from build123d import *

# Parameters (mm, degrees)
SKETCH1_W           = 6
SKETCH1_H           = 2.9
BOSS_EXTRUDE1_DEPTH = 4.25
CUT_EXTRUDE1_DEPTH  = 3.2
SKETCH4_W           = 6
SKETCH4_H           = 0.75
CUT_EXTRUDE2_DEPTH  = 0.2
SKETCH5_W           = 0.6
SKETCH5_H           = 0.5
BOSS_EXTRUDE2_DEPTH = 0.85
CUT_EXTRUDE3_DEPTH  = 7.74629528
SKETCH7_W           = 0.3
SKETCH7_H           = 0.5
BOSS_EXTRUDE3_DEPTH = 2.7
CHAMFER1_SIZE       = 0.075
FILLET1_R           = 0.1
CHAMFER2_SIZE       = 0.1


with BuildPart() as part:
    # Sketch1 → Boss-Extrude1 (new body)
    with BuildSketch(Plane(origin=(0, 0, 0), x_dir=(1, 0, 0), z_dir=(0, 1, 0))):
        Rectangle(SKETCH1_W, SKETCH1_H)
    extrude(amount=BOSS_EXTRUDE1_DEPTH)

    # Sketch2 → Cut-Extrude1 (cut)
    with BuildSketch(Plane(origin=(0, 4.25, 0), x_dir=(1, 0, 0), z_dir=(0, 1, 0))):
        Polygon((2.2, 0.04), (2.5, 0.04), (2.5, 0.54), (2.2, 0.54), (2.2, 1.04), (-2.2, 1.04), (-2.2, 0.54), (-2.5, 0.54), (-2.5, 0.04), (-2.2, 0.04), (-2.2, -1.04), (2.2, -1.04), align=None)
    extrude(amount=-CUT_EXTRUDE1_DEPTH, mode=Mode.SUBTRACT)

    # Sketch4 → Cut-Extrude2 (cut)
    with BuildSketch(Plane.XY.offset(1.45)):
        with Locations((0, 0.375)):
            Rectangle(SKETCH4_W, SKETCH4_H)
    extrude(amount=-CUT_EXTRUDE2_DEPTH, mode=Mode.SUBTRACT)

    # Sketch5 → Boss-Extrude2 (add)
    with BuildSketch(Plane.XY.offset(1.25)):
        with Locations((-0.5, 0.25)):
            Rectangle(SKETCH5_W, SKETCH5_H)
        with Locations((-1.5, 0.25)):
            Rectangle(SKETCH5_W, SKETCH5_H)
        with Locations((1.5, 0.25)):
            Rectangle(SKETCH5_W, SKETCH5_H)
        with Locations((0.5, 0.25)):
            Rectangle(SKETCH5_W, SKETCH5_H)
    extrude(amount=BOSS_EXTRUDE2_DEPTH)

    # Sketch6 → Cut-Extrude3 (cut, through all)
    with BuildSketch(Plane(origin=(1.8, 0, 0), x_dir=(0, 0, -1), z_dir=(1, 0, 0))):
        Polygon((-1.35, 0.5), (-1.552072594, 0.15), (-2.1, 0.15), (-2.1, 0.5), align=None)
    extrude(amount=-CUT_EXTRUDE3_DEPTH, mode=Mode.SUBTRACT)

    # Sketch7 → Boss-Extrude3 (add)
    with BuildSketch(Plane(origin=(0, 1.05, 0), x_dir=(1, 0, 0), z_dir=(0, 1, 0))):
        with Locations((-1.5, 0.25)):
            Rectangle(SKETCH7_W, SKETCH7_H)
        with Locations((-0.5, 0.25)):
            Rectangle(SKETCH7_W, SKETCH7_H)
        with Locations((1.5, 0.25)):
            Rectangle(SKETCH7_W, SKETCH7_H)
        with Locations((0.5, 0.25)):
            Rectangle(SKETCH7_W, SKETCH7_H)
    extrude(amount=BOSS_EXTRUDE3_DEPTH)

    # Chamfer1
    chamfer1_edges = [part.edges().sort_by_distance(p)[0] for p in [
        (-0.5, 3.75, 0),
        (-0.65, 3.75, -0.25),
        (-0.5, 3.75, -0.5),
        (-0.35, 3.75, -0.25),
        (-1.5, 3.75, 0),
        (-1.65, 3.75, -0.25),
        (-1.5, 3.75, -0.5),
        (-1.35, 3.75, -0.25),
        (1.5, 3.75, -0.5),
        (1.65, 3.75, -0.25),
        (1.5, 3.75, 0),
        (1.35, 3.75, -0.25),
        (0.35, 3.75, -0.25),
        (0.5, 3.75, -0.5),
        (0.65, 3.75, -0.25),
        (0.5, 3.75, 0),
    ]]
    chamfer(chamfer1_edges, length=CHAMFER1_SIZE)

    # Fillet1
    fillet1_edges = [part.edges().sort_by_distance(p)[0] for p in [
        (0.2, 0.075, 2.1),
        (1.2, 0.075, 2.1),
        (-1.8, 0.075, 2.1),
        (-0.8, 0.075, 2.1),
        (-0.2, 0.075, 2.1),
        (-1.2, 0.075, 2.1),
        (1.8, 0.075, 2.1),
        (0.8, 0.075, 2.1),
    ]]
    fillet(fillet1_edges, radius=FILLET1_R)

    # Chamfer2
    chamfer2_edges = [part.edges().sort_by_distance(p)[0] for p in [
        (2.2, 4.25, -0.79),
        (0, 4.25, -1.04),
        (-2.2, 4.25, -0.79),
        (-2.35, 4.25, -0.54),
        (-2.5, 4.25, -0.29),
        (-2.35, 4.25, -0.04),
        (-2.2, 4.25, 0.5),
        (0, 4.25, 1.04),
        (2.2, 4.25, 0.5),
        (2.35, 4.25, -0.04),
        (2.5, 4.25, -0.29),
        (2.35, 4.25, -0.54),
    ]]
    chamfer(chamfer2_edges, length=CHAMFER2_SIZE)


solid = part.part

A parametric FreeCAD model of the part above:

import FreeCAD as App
import Part
import Sketcher

V = App.Vector
Q = App.Units.Quantity


def edges_at(feature, points):
    """Names of the edges that pass closest to the given points."""
    edges = feature.Shape.Edges
    near = lambda p: min(range(len(edges)), key=lambda i: edges[i].distToShape(Part.Vertex(*p))[0])
    return sorted({f"Edge{near(p) + 1}" for p in points})


def add_polygon(sketch, points):
    """Adds a closed chain of lines whose ends are joined by coincident constraints."""
    first, n = sketch.GeometryCount, len(points)
    for a, b in zip(points, points[1:] + points[:1]):
        sketch.addGeometry(Part.LineSegment(App.Vector(*a, 0), App.Vector(*b, 0)), False)
    for i in range(n):
        sketch.addConstraint(Sketcher.Constraint("Coincident", first + i, 2, first + (i + 1) % n, 1))

doc = App.newDocument("Part")
params = doc.addObject("Spreadsheet::Sheet", "Params")
for row, (alias, value) in enumerate([
    ("sketch1_width", "6 mm"),
    ("sketch1_height", "2.9 mm"),
    ("pad1_length", "4.25 mm"),
    ("sketch2_width", "0.3 mm"),
    ("sketch2_width2", "4.4 mm"),
    ("sketch2_height", "0.5 mm"),
    ("sketch2_height2", "1.08 mm"),
    ("pocket1_length", "3.2 mm"),
    ("sketch3_width", "6 mm"),
    ("sketch3_height", "0.75 mm"),
    ("pocket2_length", "0.2 mm"),
    ("sketch4_width", "0.6 mm"),
    ("sketch4_height", "0.5 mm"),
    ("pad2_length", "0.85 mm"),
    ("sketch5_width", "0.35 mm"),
    ("sketch5_height", "0.75 mm"),
    ("sketch6_width", "0.3 mm"),
    ("sketch6_height", "0.5 mm"),
    ("pad3_length", "2.7 mm"),
    ("chamfer_size", "0.075 mm"),
    ("fillet_radius", "0.1 mm"),
    ("chamfer2_size", "0.1 mm"),
], start=1):
    params.set(f"A{row}", alias)
    params.set(f"B{row}", "=" + value)
    params.setAlias(f"B{row}", alias)

body = doc.addObject("PartDesign::Body", "Body")

sketch1 = body.newObject("Sketcher::SketchObject", "Sketch")
sketch1.AttachmentSupport = (doc.getObject("XZ_Plane"), [""])
sketch1.MapMode = "FlatFace"
add_polygon(sketch1, [(-3, -1.45), (-3, 1.45), (3, 1.45), (3, -1.45)])
sketch1.addConstraint([
    Sketcher.Constraint("Vertical", 0),
    Sketcher.Constraint("Horizontal", 1),
    Sketcher.Constraint("Vertical", 2),
    Sketcher.Constraint("Horizontal", 3),
    Sketcher.Constraint("Symmetric", 0, 2, 2, 2, -1, 1),
    Sketcher.Constraint("DistanceX", 1, 1, 1, 2, Q("6 mm")),
    Sketcher.Constraint("DistanceY", 0, 1, 0, 2, Q("2.9 mm")),
])
sketch1.setExpression("Constraints[9]", "Params.sketch1_width")
sketch1.setExpression("Constraints[10]", "Params.sketch1_height")
pad1 = body.newObject("PartDesign::Pad", "Pad")
pad1.Profile = sketch1
pad1.setExpression("Length", "Params.pad1_length")
pad1.Reversed = True

sketch2 = body.newObject("Sketcher::SketchObject", "Sketch001")
sketch2.AttachmentSupport = (doc.getObject("XZ_Plane"), [""])
sketch2.MapMode = "FlatFace"
sketch2.AttachmentOffset = App.Placement(V(0, 0, -4.25), App.Rotation())
add_polygon(sketch2, [(2.2, -0.04), (2.5, -0.04), (2.5, -0.54), (2.2, -0.54), (2.2, -1.04), (-2.2, -1.04), (-2.2, -0.54), (-2.5, -0.54), (-2.5, -0.04), (-2.2, -0.04), (-2.2, 1.04), (2.2, 1.04)])
sketch2.addConstraint([
    Sketcher.Constraint("Horizontal", 0),
    Sketcher.Constraint("Vertical", 1),
    Sketcher.Constraint("Horizontal", 2),
    Sketcher.Constraint("Vertical", 3),
    Sketcher.Constraint("Horizontal", 4),
    Sketcher.Constraint("Vertical", 5),
    Sketcher.Constraint("Horizontal", 6),
    Sketcher.Constraint("Vertical", 7),
    Sketcher.Constraint("Horizontal", 8),
    Sketcher.Constraint("Vertical", 9),
    Sketcher.Constraint("Horizontal", 10),
    Sketcher.Constraint("Vertical", 11),
    Sketcher.Constraint("Symmetric", 3, 2, 9, 2, -1, 1),
    Sketcher.Constraint("Symmetric", 2, 2, 5, 2, -2),
    Sketcher.Constraint("Symmetric", 0, 2, 7, 2, -2),
    Sketcher.Constraint("Vertical", 3, 2, 10, 2),
    Sketcher.Constraint("Equal", 1, 3),
    Sketcher.Constraint("DistanceX", 0, 1, 0, 2, Q("0.3 mm")),
    Sketcher.Constraint("DistanceX", 4, 2, 4, 1, Q("4.4 mm")),
    Sketcher.Constraint("DistanceY", 1, 2, 1, 1, Q("0.5 mm")),
    Sketcher.Constraint("DistanceY", 9, 1, 9, 2, Q("1.08 mm")),
])
sketch2.setExpression("Constraints[29]", "Params.sketch2_width")
sketch2.setExpression("Constraints[30]", "Params.sketch2_width2")
sketch2.setExpression("Constraints[31]", "Params.sketch2_height")
sketch2.setExpression("Constraints[32]", "Params.sketch2_height2")
pocket1 = body.newObject("PartDesign::Pocket", "Pocket")
pocket1.Profile = sketch2
pocket1.setExpression("Length", "Params.pocket1_length")
pocket1.Reversed = True

sketch3 = body.newObject("Sketcher::SketchObject", "Sketch002")
sketch3.AttachmentSupport = (doc.getObject("XY_Plane"), [""])
sketch3.MapMode = "FlatFace"
sketch3.AttachmentOffset = App.Placement(V(0, 0, 1.45), App.Rotation())
add_polygon(sketch3, [(-3, 0.75), (-3, 0), (3, 0), (3, 0.75)])
sketch3.addConstraint([
    Sketcher.Constraint("Vertical", 0),
    Sketcher.Constraint("Horizontal", 1),
    Sketcher.Constraint("Vertical", 2),
    Sketcher.Constraint("Horizontal", 3),
    Sketcher.Constraint("Symmetric", 0, 2, 1, 2, -1, 1),
    Sketcher.Constraint("DistanceX", 1, 1, 1, 2, Q("6 mm")),
    Sketcher.Constraint("DistanceY", 0, 2, 0, 1, Q("0.75 mm")),
])
sketch3.setExpression("Constraints[9]", "Params.sketch3_width")
sketch3.setExpression("Constraints[10]", "Params.sketch3_height")
pocket2 = body.newObject("PartDesign::Pocket", "Pocket001")
pocket2.Profile = sketch3
pocket2.setExpression("Length", "Params.pocket2_length")

sketch4 = body.newObject("Sketcher::SketchObject", "Sketch003")
sketch4.AttachmentSupport = (doc.getObject("XY_Plane"), [""])
sketch4.MapMode = "FlatFace"
sketch4.AttachmentOffset = App.Placement(V(0, 0, 1.25), App.Rotation())
add_polygon(sketch4, [(-0.8, 0.5), (-0.8, 0), (-0.2, 0), (-0.2, 0.5)])
add_polygon(sketch4, [(-1.8, 0.5), (-1.8, 0), (-1.2, 0), (-1.2, 0.5)])
add_polygon(sketch4, [(1.2, 0.5), (1.2, 0), (1.8, 0), (1.8, 0.5)])
add_polygon(sketch4, [(0.2, 0.5), (0.2, 0), (0.8, 0), (0.8, 0.5)])
sketch4.addConstraint([
    Sketcher.Constraint("Vertical", 0),
    Sketcher.Constraint("Horizontal", 1),
    Sketcher.Constraint("Vertical", 2),
    Sketcher.Constraint("Horizontal", 3),
    Sketcher.Constraint("Vertical", 4),
    Sketcher.Constraint("Horizontal", 5),
    Sketcher.Constraint("Vertical", 6),
    Sketcher.Constraint("Horizontal", 7),
    Sketcher.Constraint("Vertical", 8),
    Sketcher.Constraint("Horizontal", 9),
    Sketcher.Constraint("Vertical", 10),
    Sketcher.Constraint("Horizontal", 11),
    Sketcher.Constraint("Vertical", 12),
    Sketcher.Constraint("Horizontal", 13),
    Sketcher.Constraint("Vertical", 14),
    Sketcher.Constraint("Horizontal", 15),
    Sketcher.Constraint("Symmetric", 5, 2, 8, 2, -1, 1),
    Sketcher.Constraint("Symmetric", 1, 2, 12, 2, -1, 1),
    Sketcher.Constraint("Symmetric", 4, 2, 9, 2, -2),
    Sketcher.Constraint("Symmetric", 0, 2, 13, 2, -2),
    Sketcher.Constraint("Horizontal", 3, 2, 6, 2),
    Sketcher.Constraint("Horizontal", 7, 2, 10, 2),
    Sketcher.Constraint("Horizontal", 11, 2, 14, 2),
    Sketcher.Constraint("Equal", 3, 5),
    Sketcher.Constraint("DistanceX", 1, 1, 1, 2, Q("0.6 mm")),
    Sketcher.Constraint("DistanceY", 0, 2, 0, 1, Q("0.5 mm")),
    Sketcher.Constraint("DistanceX", 4, 2, 0, 2, Q("1 mm")),
    Sketcher.Constraint("DistanceX", 0, 2, 8, 2, Q("2 mm")),
])
sketch4.setExpression("Constraints[40]", "Params.sketch4_width")
sketch4.setExpression("Constraints[41]", "Params.sketch4_height")
pad2 = body.newObject("PartDesign::Pad", "Pad001")
pad2.Profile = sketch4
pad2.setExpression("Length", "Params.pad2_length")

sketch5 = body.newObject("Sketcher::SketchObject", "Sketch004")
sketch5.AttachmentSupport = (doc.getObject("YZ_Plane"), [""])
sketch5.MapMode = "FlatFace"
sketch5.AttachmentOffset = App.Placement(V(0, 0, 1.8), App.Rotation())
add_polygon(sketch5, [(0.15, 1.552073), (0.5, 1.35), (0.5, 2.1), (0.15, 2.1)])
sketch5.addConstraint([
    Sketcher.Constraint("Vertical", 1),
    Sketcher.Constraint("Horizontal", 2),
    Sketcher.Constraint("Vertical", 3),
    Sketcher.Constraint("Angle", 0, Q("-30 deg")),
    Sketcher.Constraint("DistanceX", 2, 2, 2, 1, Q("0.35 mm")),
    Sketcher.Constraint("DistanceY", 1, 1, 1, 2, Q("0.75 mm")),
    Sketcher.Constraint("DistanceX", -1, 1, 0, 2, Q("0.5 mm")),
    Sketcher.Constraint("DistanceY", -1, 1, 1, 2, Q("2.1 mm")),
])
sketch5.setExpression("Constraints[8]", "Params.sketch5_width")
sketch5.setExpression("Constraints[9]", "Params.sketch5_height")
pocket3 = body.newObject("PartDesign::Pocket", "Pocket002")
pocket3.Profile = sketch5
pocket3.Type = "ThroughAll"

sketch6 = body.newObject("Sketcher::SketchObject", "Sketch005")
sketch6.AttachmentSupport = (doc.getObject("XZ_Plane"), [""])
sketch6.MapMode = "FlatFace"
sketch6.AttachmentOffset = App.Placement(V(0, 0, -1.05), App.Rotation())
add_polygon(sketch6, [(-1.65, -0.5), (-1.65, 0), (-1.35, 0), (-1.35, -0.5)])
add_polygon(sketch6, [(-0.65, -0.5), (-0.65, 0), (-0.35, 0), (-0.35, -0.5)])
add_polygon(sketch6, [(1.35, -0.5), (1.35, 0), (1.65, 0), (1.65, -0.5)])
add_polygon(sketch6, [(0.35, -0.5), (0.35, 0), (0.65, 0), (0.65, -0.5)])
sketch6.addConstraint([
    Sketcher.Constraint("Vertical", 0),
    Sketcher.Constraint("Horizontal", 1),
    Sketcher.Constraint("Vertical", 2),
    Sketcher.Constraint("Horizontal", 3),
    Sketcher.Constraint("Vertical", 4),
    Sketcher.Constraint("Horizontal", 5),
    Sketcher.Constraint("Vertical", 6),
    Sketcher.Constraint("Horizontal", 7),
    Sketcher.Constraint("Vertical", 8),
    Sketcher.Constraint("Horizontal", 9),
    Sketcher.Constraint("Vertical", 10),
    Sketcher.Constraint("Horizontal", 11),
    Sketcher.Constraint("Vertical", 12),
    Sketcher.Constraint("Horizontal", 13),
    Sketcher.Constraint("Vertical", 14),
    Sketcher.Constraint("Horizontal", 15),
    Sketcher.Constraint("Symmetric", 1, 2, 8, 2, -1, 1),
    Sketcher.Constraint("Symmetric", 5, 2, 12, 2, -1, 1),
    Sketcher.Constraint("Symmetric", 0, 2, 9, 2, -2),
    Sketcher.Constraint("Symmetric", 4, 2, 13, 2, -2),
    Sketcher.Constraint("Horizontal", 3, 2, 6, 2),
    Sketcher.Constraint("Horizontal", 7, 2, 10, 2),
    Sketcher.Constraint("Horizontal", 11, 2, 14, 2),
    Sketcher.Constraint("Equal", 3, 5),
    Sketcher.Constraint("DistanceX", 1, 1, 1, 2, Q("0.3 mm")),
    Sketcher.Constraint("DistanceY", 0, 1, 0, 2, Q("0.5 mm")),
    Sketcher.Constraint("DistanceX", 0, 2, 4, 2, Q("1 mm")),
    Sketcher.Constraint("DistanceX", 4, 2, 8, 2, Q("2 mm")),
])
sketch6.setExpression("Constraints[40]", "Params.sketch6_width")
sketch6.setExpression("Constraints[41]", "Params.sketch6_height")
pad3 = body.newObject("PartDesign::Pad", "Pad002")
pad3.Profile = sketch6
pad3.setExpression("Length", "Params.pad3_length")
pad3.Reversed = True
doc.recompute()

chamfer = body.newObject("PartDesign::Chamfer", "Chamfer")
chamfer.Base = (pad3, edges_at(pad3, [
    (-0.5, 3.75, 0),
    (-0.65, 3.75, -0.25),
    (-0.5, 3.75, -0.5),
    (-0.35, 3.75, -0.25),
    (-1.5, 3.75, 0),
    (-1.65, 3.75, -0.25),
    (-1.5, 3.75, -0.5),
    (-1.35, 3.75, -0.25),
    (1.5, 3.75, -0.5),
    (1.65, 3.75, -0.25),
    (1.5, 3.75, 0),
    (1.35, 3.75, -0.25),
    (0.35, 3.75, -0.25),
    (0.5, 3.75, -0.5),
    (0.65, 3.75, -0.25),
    (0.5, 3.75, 0),
]))
chamfer.setExpression("Size", "Params.chamfer_size")
doc.recompute()

fillet = body.newObject("PartDesign::Fillet", "Fillet")
fillet.Base = (chamfer, edges_at(chamfer, [
    (0.2, 0.075, 2.1),
    (1.2, 0.075, 2.1),
    (-1.8, 0.075, 2.1),
    (-0.8, 0.075, 2.1),
    (-0.2, 0.075, 2.1),
    (-1.2, 0.075, 2.1),
    (1.8, 0.075, 2.1),
    (0.8, 0.075, 2.1),
]))
fillet.setExpression("Radius", "Params.fillet_radius")
doc.recompute()

chamfer2 = body.newObject("PartDesign::Chamfer", "Chamfer001")
chamfer2.Base = (fillet, edges_at(fillet, [
    (2.2, 4.25, -0.79),
    (0, 4.25, -1.04),
    (-2.2, 4.25, -0.79),
    (-2.35, 4.25, -0.54),
    (-2.5, 4.25, -0.29),
    (-2.35, 4.25, -0.04),
    (-2.2, 4.25, 0.5),
    (0, 4.25, 1.04),
    (2.2, 4.25, 0.5),
    (2.35, 4.25, -0.04),
    (2.5, 4.25, -0.29),
    (2.35, 4.25, -0.54),
]))
chamfer2.setExpression("Size", "Params.chamfer2_size")

doc.recompute()
